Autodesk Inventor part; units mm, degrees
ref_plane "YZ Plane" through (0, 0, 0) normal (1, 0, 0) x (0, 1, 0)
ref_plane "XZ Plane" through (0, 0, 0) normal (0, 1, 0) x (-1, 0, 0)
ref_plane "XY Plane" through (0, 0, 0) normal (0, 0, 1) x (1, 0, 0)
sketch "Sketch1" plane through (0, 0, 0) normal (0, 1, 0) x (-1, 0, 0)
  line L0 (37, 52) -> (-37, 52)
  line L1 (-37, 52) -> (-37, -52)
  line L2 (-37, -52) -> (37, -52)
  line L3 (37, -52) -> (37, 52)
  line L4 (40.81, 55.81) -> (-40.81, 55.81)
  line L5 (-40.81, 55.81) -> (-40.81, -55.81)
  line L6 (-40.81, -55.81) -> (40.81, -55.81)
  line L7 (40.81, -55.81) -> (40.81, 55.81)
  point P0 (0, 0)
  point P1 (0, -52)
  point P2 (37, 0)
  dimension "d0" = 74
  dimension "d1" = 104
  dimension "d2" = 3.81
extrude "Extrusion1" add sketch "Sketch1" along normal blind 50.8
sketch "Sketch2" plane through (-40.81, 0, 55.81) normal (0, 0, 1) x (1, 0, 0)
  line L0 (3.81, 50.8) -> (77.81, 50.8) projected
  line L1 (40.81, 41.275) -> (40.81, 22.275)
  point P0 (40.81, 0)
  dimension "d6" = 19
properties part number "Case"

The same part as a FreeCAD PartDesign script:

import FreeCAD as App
import Part
import Sketcher
from FreeCAD import Vector
Q = App.Units.Quantity


def add_polygon(sketch, points):
    """Adds a closed chain of lines whose ends are joined by coincident constraints."""
    first, n = sketch.GeometryCount, len(points)
    for a, b in zip(points, points[1:] + points[:1]):
        sketch.addGeometry(Part.LineSegment(App.Vector(*a, 0), App.Vector(*b, 0)), False)
    for i in range(n):
        sketch.addConstraint(Sketcher.Constraint("Coincident", first + i, 2, first + (i + 1) % n, 1))

doc = App.newDocument("Part")
body = doc.addObject("PartDesign::Body", "Body")

# Sketch on XZ plane
sketch1 = body.newObject("Sketcher::SketchObject", "Sketch")
sketch1.AttachmentSupport = (doc.getObject("XZ_Plane"), [""])
sketch1.MapMode = "FlatFace"
add_polygon(sketch1, [(-40.81, -55.81), (-40.81, 55.81), (40.81, 55.81), (40.81, -55.81)])  # lines 0-3
add_polygon(sketch1, [(37, 52), (-37, 52), (-37, -52), (37, -52)])  # lines 4-7
sketch1.addConstraint(Sketcher.Constraint("Vertical", 0))
sketch1.addConstraint(Sketcher.Constraint("Horizontal", 1))
sketch1.addConstraint(Sketcher.Constraint("Vertical", 2))
sketch1.addConstraint(Sketcher.Constraint("Horizontal", 3))
sketch1.addConstraint(Sketcher.Constraint("Horizontal", 4))
sketch1.addConstraint(Sketcher.Constraint("Vertical", 5))
sketch1.addConstraint(Sketcher.Constraint("Horizontal", 6))
sketch1.addConstraint(Sketcher.Constraint("Vertical", 7))
sketch1.addConstraint(Sketcher.Constraint("Symmetric", 0, 2, 2, 2, -1, 1))
sketch1.addConstraint(Sketcher.Constraint("Symmetric", 4, 2, 6, 2, -1, 1))
sketch1.addConstraint(Sketcher.Constraint("DistanceX", 4, 2, 4, 1, Q("74 mm")))
sketch1.addConstraint(Sketcher.Constraint("DistanceY", 5, 2, 5, 1, Q("104 mm")))
sketch1.addConstraint(Sketcher.Constraint("DistanceX", 0, 2, 4, 2, Q("3.81 mm")))
sketch1.addConstraint(Sketcher.Constraint("DistanceY", 4, 2, 0, 2, Q("3.81 mm")))
pad1 = body.newObject("PartDesign::Pad", "Pad")
pad1.Profile = sketch1
pad1.Length = 50.8
pad1.Reversed = True

doc.recompute()
